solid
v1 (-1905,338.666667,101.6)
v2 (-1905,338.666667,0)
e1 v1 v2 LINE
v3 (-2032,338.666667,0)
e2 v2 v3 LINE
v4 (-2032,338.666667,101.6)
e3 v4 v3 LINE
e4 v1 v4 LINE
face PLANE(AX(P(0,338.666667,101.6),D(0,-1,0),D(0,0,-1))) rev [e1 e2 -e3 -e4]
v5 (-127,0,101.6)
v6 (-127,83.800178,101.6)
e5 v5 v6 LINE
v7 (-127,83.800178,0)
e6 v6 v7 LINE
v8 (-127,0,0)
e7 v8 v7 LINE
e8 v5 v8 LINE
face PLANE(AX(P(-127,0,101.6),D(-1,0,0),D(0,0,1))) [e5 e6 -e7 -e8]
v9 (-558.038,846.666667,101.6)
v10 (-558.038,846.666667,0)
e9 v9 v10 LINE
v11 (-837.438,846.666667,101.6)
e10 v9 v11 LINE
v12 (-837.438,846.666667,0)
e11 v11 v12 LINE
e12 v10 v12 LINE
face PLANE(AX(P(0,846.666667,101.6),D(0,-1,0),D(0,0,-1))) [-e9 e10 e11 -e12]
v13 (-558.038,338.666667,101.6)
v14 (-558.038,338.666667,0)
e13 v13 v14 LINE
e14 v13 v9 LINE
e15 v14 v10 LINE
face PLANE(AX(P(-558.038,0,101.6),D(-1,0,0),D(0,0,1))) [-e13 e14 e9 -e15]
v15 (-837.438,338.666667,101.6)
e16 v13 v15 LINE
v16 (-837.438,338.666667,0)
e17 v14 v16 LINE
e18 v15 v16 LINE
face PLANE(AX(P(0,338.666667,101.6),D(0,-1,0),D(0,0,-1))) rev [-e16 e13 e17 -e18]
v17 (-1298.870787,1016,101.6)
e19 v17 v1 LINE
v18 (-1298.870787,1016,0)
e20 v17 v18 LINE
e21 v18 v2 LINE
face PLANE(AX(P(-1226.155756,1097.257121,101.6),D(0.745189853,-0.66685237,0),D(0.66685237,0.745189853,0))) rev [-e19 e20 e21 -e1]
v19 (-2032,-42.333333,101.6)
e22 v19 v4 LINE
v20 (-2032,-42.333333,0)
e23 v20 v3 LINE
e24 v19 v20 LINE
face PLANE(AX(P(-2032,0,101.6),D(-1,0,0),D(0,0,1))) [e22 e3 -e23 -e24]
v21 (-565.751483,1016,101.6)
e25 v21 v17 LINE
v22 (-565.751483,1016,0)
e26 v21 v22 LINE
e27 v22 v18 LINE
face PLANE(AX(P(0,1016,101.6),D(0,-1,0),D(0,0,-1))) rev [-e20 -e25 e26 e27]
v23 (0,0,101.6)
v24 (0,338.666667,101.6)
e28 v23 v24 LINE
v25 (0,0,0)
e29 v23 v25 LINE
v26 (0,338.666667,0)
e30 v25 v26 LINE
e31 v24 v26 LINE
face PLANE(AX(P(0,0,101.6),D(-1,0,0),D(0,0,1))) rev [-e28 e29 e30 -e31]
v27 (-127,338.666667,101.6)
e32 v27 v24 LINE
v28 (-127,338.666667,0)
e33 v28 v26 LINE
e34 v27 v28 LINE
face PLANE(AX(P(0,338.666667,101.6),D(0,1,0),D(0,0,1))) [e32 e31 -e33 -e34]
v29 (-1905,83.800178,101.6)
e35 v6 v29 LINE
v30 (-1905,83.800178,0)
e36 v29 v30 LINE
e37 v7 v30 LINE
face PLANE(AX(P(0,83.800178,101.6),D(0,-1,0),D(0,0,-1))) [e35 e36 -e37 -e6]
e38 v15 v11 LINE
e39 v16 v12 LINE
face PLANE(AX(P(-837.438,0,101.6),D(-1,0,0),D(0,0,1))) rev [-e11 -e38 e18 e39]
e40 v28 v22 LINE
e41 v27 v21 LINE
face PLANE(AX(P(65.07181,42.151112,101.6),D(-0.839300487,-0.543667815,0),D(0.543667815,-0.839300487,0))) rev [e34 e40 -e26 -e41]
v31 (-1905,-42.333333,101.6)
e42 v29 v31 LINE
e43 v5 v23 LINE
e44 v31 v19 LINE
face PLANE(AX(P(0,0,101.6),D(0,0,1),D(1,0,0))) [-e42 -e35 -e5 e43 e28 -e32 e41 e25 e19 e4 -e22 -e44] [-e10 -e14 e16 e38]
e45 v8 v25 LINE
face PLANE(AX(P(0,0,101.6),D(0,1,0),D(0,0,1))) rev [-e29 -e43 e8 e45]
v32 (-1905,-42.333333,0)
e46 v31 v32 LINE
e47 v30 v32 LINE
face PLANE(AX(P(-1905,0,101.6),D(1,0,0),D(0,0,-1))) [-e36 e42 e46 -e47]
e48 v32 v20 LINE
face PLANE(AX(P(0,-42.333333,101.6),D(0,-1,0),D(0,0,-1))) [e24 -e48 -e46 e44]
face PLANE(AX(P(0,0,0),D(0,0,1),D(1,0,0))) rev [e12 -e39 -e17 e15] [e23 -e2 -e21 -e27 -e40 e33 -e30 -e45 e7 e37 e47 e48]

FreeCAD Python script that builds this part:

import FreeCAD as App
import Part
import Sketcher
from FreeCAD import Vector
Q = App.Units.Quantity

doc = App.newDocument("Part")
params = doc.addObject("Spreadsheet::Sheet", "Params")
for row, (alias, value) in enumerate([
    ("sketch1_width", "5 in"),
    ("sketch1_width2", "70 in"),
    ("sketch1_width3", "11 in"),
    ("sketch1_height", "15 in"),
    ("sketch1_height2", "20 in"),
    ("pad1_length", "4 in"),
], start=1):
    params.set(f"A{row}", alias)
    params.set(f"B{row}", "=" + value)
    params.setAlias(f"B{row}", alias)

body = doc.addObject("PartDesign::Body", "Body")

sketch1 = doc.addObject("Sketcher::SketchObject", "Sketch")
body.addObject(sketch1)
sketch1.AttachmentSupport = (doc.XY_Plane, [""])
sketch1.MapMode = "FlatFace"
sketch1.addGeometry([
    Part.LineSegment(Vector(0, 339, 0), Vector(-127, 339, 0)),
    Part.LineSegment(Vector(-127, 339, 0), Vector(-566, 1016, 0)),
    Part.LineSegment(Vector(-566, 1016, 0), Vector(-1299, 1016, 0)),
    Part.LineSegment(Vector(-1299, 1016, 0), Vector(-1905, 339, 0)),
    Part.LineSegment(Vector(-1905, 339, 0), Vector(-2032, 339, 0)),
    Part.LineSegment(Vector(-2032, 339, 0), Vector(-2032, -42, 0)),
    Part.LineSegment(Vector(-2032, -42, 0), Vector(-1905, -42, 0)),
    Part.LineSegment(Vector(-1905, -42, 0), Vector(-1905, 84, 0)),
    Part.LineSegment(Vector(-1905, 84, 0), Vector(-127, 84, 0)),
    Part.LineSegment(Vector(-127, 84, 0), Vector(-127, 0, 0)),
    Part.LineSegment(Vector(-127, 0, 0), Vector(0, 0, 0)),
    Part.LineSegment(Vector(0, 0, 0), Vector(0, 339, 0)),
    Part.LineSegment(Vector(-837, 339, 0), Vector(-837, 847, 0)),
    Part.LineSegment(Vector(-837, 847, 0), Vector(-558, 847, 0)),
    Part.LineSegment(Vector(-558, 847, 0), Vector(-558, 339, 0)),
    Part.LineSegment(Vector(-558, 339, 0), Vector(-837, 339, 0)),
], False)
sketch1.addConstraint([
    Sketcher.Constraint("Coincident", 0, 2, 1, 1),
    Sketcher.Constraint("Coincident", 1, 2, 2, 1),
    Sketcher.Constraint("Coincident", 2, 2, 3, 1),
    Sketcher.Constraint("Coincident", 3, 2, 4, 1),
    Sketcher.Constraint("Coincident", 4, 2, 5, 1),
    Sketcher.Constraint("Coincident", 5, 2, 6, 1),
    Sketcher.Constraint("Coincident", 6, 2, 7, 1),
    Sketcher.Constraint("Coincident", 7, 2, 8, 1),
    Sketcher.Constraint("Coincident", 8, 2, 9, 1),
    Sketcher.Constraint("Coincident", 9, 2, 10, 1),
    Sketcher.Constraint("Coincident", 10, 2, 11, 1),
    Sketcher.Constraint("Coincident", 11, 2, 0, 1),
    Sketcher.Constraint("Coincident", 12, 2, 13, 1),
    Sketcher.Constraint("Coincident", 13, 2, 14, 1),
    Sketcher.Constraint("Coincident", 14, 2, 15, 1),
    Sketcher.Constraint("Coincident", 15, 2, 12, 1),
    Sketcher.Constraint("Horizontal", 0),
    Sketcher.Constraint("Horizontal", 2),
    Sketcher.Constraint("Horizontal", 4),
    Sketcher.Constraint("Vertical", 5),
    Sketcher.Constraint("Horizontal", 6),
    Sketcher.Constraint("Vertical", 7),
    Sketcher.Constraint("Horizontal", 8),
    Sketcher.Constraint("Vertical", 9),
    Sketcher.Constraint("Horizontal", 10),
    Sketcher.Constraint("Vertical", 11),
    Sketcher.Constraint("Vertical", 12),
    Sketcher.Constraint("Horizontal", 13),
    Sketcher.Constraint("Vertical", 14),
    Sketcher.Constraint("Horizontal", 15),
    Sketcher.Constraint("Coincident", 10, 2, -1, 1),
    Sketcher.Constraint("Horizontal", 0, 2, 3, 2),
    Sketcher.Constraint("Horizontal", 11, 2, 14, 2),
    Sketcher.Constraint("Vertical", 3, 2, 6, 2),
    Sketcher.Constraint("Vertical", 0, 2, 8, 2),
    Sketcher.Constraint("Equal", 0, 4),
    Sketcher.Constraint("DistanceX", 0, 2, 0, 1, Q("5 in")),
    Sketcher.Constraint("DistanceX", 8, 1, 8, 2, Q("70 in")),
    Sketcher.Constraint("DistanceX", 13, 1, 13, 2, Q("11 in")),
    Sketcher.Constraint("DistanceY", 5, 2, 5, 1, Q("15 in")),
    Sketcher.Constraint("DistanceY", 12, 1, 12, 2, Q("20 in")),
    Sketcher.Constraint("DistanceY", -1, 1, 1, 2, Q("40 in")),
    Sketcher.Constraint("DistanceX", 12, 2, -1, 1, Q("32.97 in")),
    Sketcher.Constraint("DistanceY", 7, 1, 7, 2, Q("126.133512 mm")),
    Sketcher.Constraint("DistanceY", 9, 2, 9, 1, Q("83.800178 mm")),
    Sketcher.Constraint("Distance", 3, Q("908.940629 mm")),
    Sketcher.Constraint("DistanceX", 2, 2, 2, 1, Q("733.119304 mm")),
])
sketch1.setExpression("Constraints[36]", "Params.sketch1_width")
sketch1.setExpression("Constraints[37]", "Params.sketch1_width2")
sketch1.setExpression("Constraints[38]", "Params.sketch1_width3")
sketch1.setExpression("Constraints[39]", "Params.sketch1_height")
sketch1.setExpression("Constraints[40]", "Params.sketch1_height2")
pad1 = doc.addObject("PartDesign::Pad", "Pad")
body.addObject(pad1)
pad1.Profile = sketch1
pad1.setExpression("Length", "Params.pad1_length")

doc.recompute()
